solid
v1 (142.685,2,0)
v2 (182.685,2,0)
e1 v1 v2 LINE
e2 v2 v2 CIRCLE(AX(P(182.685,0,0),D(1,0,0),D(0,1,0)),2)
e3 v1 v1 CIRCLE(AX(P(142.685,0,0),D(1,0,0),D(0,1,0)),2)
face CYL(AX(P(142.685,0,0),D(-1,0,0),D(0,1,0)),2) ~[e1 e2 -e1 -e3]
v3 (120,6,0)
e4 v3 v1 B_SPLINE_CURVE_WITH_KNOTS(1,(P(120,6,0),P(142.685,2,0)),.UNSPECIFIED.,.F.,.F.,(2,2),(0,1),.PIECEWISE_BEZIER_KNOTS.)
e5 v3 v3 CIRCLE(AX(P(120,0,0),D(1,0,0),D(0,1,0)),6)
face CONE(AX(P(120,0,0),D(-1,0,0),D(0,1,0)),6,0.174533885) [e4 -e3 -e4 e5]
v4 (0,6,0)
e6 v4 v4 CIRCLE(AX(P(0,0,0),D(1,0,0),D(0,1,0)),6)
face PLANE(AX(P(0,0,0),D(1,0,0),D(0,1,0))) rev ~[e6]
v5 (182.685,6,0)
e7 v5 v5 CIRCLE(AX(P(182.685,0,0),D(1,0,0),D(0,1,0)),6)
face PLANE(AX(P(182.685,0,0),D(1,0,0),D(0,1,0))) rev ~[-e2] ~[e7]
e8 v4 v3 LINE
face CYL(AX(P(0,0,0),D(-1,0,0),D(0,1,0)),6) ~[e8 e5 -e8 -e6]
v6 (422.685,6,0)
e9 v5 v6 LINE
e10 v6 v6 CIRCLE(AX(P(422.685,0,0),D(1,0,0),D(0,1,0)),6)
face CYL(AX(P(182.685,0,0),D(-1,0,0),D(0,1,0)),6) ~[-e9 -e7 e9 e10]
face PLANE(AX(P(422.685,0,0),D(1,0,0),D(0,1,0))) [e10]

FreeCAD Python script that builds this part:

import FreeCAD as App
import Part
import Sketcher

V = App.Vector
Q = App.Units.Quantity

doc = App.newDocument("Part")
body = doc.addObject("PartDesign::Body", "Body")

sketch1 = body.newObject("Sketcher::SketchObject", "Sketch")
sketch1.AttachmentSupport = (doc.getObject("YZ_Plane"), [""])
sketch1.MapMode = "FlatFace"
sketch1.addGeometry(Part.Circle(V(0, 0, 0), V(0, 0, 1), 6), False)
sketch1.addConstraint([
    Sketcher.Constraint("Coincident", 0, 3, -1, 1),
    Sketcher.Constraint("Diameter", 0, Q("12 mm")),
])
pad1 = body.newObject("PartDesign::Pad", "Pad")
pad1.Profile = sketch1
pad1.Length = 120

sketch2 = body.newObject("Sketcher::SketchObject", "Sketch001")
sketch2.AttachmentSupport = (doc.getObject("YZ_Plane"), [""])
sketch2.MapMode = "FlatFace"
sketch2.AttachmentOffset = App.Placement(V(0, 0, 120), App.Rotation())
sketch2.addGeometry(Part.Circle(V(0, 0, 0), V(0, 0, 1), 6), False)
sketch2.addConstraint([
    Sketcher.Constraint("Coincident", 0, 3, -1, 1),
    Sketcher.Constraint("Diameter", 0, Q("12 mm")),
])

sketch3 = body.newObject("Sketcher::SketchObject", "Sketch002")
sketch3.AttachmentSupport = (doc.getObject("YZ_Plane"), [""])
sketch3.MapMode = "FlatFace"
sketch3.AttachmentOffset = App.Placement(V(0, 0, 142.685), App.Rotation())
sketch3.addGeometry(Part.Circle(V(0, 0, 0), V(0, 0, 1), 2), False)
sketch3.addConstraint([
    Sketcher.Constraint("Coincident", 0, 3, -1, 1),
    Sketcher.Constraint("Diameter", 0, Q("4 mm")),
])

additiveloft = body.newObject("PartDesign::AdditiveLoft", "AdditiveLoft")
additiveloft.Profile = sketch2
additiveloft.Sections = [sketch3]

sketch4 = body.newObject("Sketcher::SketchObject", "Sketch003")
sketch4.AttachmentSupport = (doc.getObject("YZ_Plane"), [""])
sketch4.MapMode = "FlatFace"
sketch4.AttachmentOffset = App.Placement(V(0, 0, 142.685), App.Rotation())
sketch4.addGeometry(Part.Circle(V(0, 0, 0), V(0, 0, 1), 2), False)
sketch4.addConstraint([
    Sketcher.Constraint("Coincident", 0, 3, -1, 1),
    Sketcher.Constraint("Diameter", 0, Q("4 mm")),
])
pad2 = body.newObject("PartDesign::Pad", "Pad001")
pad2.Profile = sketch4
pad2.Length = 40

sketch5 = body.newObject("Sketcher::SketchObject", "Sketch004")
sketch5.AttachmentSupport = (doc.getObject("YZ_Plane"), [""])
sketch5.MapMode = "FlatFace"
sketch5.AttachmentOffset = App.Placement(V(0, 0, 182.685), App.Rotation())
sketch5.addGeometry(Part.Circle(V(0, 0, 0), V(0, 0, 1), 6), False)
sketch5.addConstraint([
    Sketcher.Constraint("Coincident", 0, 3, -1, 1),
    Sketcher.Constraint("Diameter", 0, Q("12 mm")),
])
pad3 = body.newObject("PartDesign::Pad", "Pad002")
pad3.Profile = sketch5
pad3.Length = 240

doc.recompute()
